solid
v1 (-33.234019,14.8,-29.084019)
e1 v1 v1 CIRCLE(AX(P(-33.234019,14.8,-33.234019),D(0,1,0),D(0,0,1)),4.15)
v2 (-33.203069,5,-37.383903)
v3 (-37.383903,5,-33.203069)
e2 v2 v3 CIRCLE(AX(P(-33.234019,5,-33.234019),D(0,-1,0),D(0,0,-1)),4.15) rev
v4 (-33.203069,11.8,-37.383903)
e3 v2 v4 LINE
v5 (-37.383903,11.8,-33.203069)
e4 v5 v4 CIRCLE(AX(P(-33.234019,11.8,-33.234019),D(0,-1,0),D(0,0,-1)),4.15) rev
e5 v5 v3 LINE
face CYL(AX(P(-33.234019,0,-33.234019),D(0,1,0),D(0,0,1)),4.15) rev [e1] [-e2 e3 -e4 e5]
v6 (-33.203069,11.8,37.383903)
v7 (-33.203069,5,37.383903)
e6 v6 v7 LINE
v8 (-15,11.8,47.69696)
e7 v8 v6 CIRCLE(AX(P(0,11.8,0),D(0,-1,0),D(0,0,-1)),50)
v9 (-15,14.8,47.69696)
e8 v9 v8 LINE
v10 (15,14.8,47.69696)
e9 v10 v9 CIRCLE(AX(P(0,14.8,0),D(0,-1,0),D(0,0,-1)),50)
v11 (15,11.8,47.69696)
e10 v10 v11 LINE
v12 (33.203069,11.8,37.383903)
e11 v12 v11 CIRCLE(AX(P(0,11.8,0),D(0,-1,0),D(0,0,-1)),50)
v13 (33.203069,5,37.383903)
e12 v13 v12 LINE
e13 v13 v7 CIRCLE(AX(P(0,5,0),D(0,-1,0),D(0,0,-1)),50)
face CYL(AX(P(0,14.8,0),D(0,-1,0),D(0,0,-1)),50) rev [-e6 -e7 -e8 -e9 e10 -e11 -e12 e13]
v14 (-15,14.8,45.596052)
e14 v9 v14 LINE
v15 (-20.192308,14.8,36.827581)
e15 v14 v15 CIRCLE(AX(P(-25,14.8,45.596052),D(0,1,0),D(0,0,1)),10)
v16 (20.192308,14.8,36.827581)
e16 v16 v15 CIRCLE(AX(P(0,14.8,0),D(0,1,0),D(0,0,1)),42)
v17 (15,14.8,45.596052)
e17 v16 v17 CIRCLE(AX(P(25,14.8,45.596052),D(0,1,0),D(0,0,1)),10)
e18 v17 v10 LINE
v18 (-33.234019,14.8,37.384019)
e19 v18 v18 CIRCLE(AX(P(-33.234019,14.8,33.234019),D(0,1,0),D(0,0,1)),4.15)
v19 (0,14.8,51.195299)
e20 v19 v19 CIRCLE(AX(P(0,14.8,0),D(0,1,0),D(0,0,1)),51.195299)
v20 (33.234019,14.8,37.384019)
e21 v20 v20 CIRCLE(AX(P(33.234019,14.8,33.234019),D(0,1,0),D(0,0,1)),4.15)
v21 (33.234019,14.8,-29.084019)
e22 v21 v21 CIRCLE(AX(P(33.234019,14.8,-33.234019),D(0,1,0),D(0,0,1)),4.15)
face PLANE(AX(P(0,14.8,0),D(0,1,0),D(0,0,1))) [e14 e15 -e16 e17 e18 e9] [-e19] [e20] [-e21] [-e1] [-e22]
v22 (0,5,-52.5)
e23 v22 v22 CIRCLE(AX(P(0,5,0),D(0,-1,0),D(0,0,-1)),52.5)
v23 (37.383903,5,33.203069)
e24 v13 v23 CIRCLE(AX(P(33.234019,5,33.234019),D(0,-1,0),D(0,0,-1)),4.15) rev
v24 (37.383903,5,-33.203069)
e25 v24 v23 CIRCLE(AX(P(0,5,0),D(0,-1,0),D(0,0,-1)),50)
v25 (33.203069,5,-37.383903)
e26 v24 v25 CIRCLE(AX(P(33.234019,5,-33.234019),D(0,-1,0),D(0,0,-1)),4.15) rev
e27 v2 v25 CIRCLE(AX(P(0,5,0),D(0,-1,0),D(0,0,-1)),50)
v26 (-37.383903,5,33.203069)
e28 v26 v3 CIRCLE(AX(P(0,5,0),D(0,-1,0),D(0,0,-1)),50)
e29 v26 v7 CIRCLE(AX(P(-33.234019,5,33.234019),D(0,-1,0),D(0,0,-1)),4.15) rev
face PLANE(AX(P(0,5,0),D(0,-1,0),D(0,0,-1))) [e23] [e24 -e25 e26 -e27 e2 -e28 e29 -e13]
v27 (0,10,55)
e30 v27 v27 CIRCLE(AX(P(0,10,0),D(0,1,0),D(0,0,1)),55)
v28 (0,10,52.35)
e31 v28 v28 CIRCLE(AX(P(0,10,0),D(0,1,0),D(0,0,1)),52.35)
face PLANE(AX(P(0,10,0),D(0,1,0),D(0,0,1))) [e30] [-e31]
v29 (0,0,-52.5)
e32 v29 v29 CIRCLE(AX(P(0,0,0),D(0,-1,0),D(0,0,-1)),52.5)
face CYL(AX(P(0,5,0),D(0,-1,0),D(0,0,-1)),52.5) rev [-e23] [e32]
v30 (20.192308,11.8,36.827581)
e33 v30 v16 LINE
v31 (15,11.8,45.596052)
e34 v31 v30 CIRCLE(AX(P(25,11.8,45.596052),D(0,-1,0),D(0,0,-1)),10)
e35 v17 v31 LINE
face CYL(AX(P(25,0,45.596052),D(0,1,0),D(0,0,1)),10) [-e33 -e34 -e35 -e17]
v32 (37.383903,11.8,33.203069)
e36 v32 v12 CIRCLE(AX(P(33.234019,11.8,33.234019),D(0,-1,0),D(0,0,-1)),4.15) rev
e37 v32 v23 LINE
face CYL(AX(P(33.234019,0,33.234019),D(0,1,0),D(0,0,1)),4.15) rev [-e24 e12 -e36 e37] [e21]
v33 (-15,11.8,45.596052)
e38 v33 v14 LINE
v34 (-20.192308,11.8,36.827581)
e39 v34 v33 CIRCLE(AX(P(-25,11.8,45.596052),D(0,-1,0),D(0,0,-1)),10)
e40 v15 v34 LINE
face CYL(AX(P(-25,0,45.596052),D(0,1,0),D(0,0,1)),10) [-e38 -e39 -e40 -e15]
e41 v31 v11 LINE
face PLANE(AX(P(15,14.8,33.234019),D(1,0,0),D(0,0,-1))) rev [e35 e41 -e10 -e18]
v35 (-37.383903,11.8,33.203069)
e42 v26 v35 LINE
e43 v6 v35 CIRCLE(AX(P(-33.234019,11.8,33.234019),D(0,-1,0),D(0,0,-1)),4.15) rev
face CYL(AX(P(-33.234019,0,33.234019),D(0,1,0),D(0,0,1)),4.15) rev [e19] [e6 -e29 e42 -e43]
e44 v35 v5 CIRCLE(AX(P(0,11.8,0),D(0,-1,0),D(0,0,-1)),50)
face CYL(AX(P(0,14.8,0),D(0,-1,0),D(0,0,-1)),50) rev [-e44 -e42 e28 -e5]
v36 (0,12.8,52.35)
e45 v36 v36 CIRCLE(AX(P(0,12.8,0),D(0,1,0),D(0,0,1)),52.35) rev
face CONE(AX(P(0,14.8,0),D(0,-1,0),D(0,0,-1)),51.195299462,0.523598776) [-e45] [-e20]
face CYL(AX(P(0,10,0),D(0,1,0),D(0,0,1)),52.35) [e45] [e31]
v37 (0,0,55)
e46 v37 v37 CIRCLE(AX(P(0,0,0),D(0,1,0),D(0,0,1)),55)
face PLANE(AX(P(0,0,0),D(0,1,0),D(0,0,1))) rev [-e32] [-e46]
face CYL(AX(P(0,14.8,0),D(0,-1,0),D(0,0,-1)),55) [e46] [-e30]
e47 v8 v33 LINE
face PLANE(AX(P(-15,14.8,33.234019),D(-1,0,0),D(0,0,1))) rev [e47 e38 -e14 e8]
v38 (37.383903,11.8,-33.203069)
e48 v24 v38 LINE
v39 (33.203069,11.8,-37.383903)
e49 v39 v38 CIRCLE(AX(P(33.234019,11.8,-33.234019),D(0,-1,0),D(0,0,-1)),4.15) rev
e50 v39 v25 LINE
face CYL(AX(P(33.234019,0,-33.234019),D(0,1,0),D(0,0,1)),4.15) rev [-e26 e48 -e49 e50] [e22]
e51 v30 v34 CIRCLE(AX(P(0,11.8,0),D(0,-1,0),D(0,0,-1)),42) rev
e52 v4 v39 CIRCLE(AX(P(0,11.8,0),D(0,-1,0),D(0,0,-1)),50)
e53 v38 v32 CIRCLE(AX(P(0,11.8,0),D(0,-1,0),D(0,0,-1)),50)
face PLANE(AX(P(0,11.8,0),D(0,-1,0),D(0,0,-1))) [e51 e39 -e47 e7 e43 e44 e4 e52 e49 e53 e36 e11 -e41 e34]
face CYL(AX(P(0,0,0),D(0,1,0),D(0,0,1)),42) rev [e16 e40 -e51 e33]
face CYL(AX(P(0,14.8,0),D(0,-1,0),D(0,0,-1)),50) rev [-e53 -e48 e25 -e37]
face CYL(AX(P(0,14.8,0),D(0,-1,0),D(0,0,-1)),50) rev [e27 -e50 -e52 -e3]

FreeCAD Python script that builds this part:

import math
import FreeCAD as App
import Part
import Sketcher
from FreeCAD import Vector
Q = App.Units.Quantity


def edges_at(feature, points):
    """Names of the edges that pass closest to the given points."""
    edges = feature.Shape.Edges
    near = lambda p: min(range(len(edges)), key=lambda i: edges[i].distToShape(Part.Vertex(*p))[0])
    return sorted({f"Edge{near(p) + 1}" for p in points})


def faces_at(feature, points):
    """Names of the faces that lie closest to the given points."""
    faces = feature.Shape.Faces
    near = lambda p: min(range(len(faces)), key=lambda i: faces[i].distToShape(Part.Vertex(*p))[0])
    return sorted({f"Face{near(p) + 1}" for p in points})

doc = App.newDocument("Part")
params = doc.addObject("Spreadsheet::Sheet", "Params")
for row, (alias, value) in enumerate([
    ("sketch1_diameter", "110 mm"),
    ("pad1_length", "14.8 mm"),
    ("thickness_wall", "5 mm"),
    ("sketch2_diameter", "70 mm"),
    ("sketch3_diameter", "84 mm"),
    ("sketch4_diameter", "8.3 mm"),
    ("sketch5_diameter", "100 mm"),
    ("pocket4_length", "2 mm"),
    ("sketch6_radius", "50 mm"),
    ("sketch6_width", "30 mm"),
    ("fillet_radius", "10 mm"),
    ("sketch7_diameter", "104.7 mm"),
    ("pocket6_length", "4.8 mm"),
    ("chamfer_size", "2 mm"),
    ("chamfer_size2", "1.154701 mm"),
    ("sketch8_diameter", "105 mm"),
    ("pocket7_length", "5 mm"),
], start=1):
    params.set(f"A{row}", alias)
    params.set(f"B{row}", "=" + value)
    params.setAlias(f"B{row}", alias)

body = doc.addObject("PartDesign::Body", "Body")

sketch1 = body.newObject("Sketcher::SketchObject", "Sketch")
sketch1.AttachmentSupport = (doc.getObject("XZ_Plane"), [""])
sketch1.MapMode = "FlatFace"
sketch1.addGeometry(Part.Circle(Vector(0, 0, 0), Vector(0, 0, 1), 55), False)
sketch1.addConstraint([
    Sketcher.Constraint("Coincident", 0, 3, -1, 1),
    Sketcher.Constraint("Diameter", 0, Q("110 mm")),
])
sketch1.setExpression("Constraints[1]", "Params.sketch1_diameter")
pad1 = body.newObject("PartDesign::Pad", "Pad")
pad1.Profile = sketch1
pad1.setExpression("Length", "Params.pad1_length")
pad1.Reversed = True
doc.recompute()

thickness = body.newObject("PartDesign::Thickness", "Thickness")
thickness.Base = (pad1, faces_at(pad1, [(0, 0, 0)]))
thickness.setExpression("Value", "Params.thickness_wall")
thickness.Reversed = True
thickness.Join = "Intersection"

sketch2 = body.newObject("Sketcher::SketchObject", "Sketch001")
sketch2.AttachmentSupport = (doc.getObject("XZ_Plane"), [""])
sketch2.MapMode = "FlatFace"
sketch2.AttachmentOffset = App.Placement(Vector(0, 0, -9.8), App.Rotation())
sketch2.addGeometry(Part.Circle(Vector(0, 0, 0), Vector(0, 0, 1), 35), False)
sketch2.addConstraint([
    Sketcher.Constraint("Coincident", 0, 3, -1, 1),
    Sketcher.Constraint("Diameter", 0, Q("70 mm")),
])
sketch2.setExpression("Constraints[1]", "Params.sketch2_diameter")
pocket1 = body.newObject("PartDesign::Pocket", "Pocket")
pocket1.Profile = sketch2
pocket1.Type = "ThroughAll"

sketch3 = body.newObject("Sketcher::SketchObject", "Sketch002")
sketch3.AttachmentSupport = (doc.getObject("XZ_Plane"), [""])
sketch3.MapMode = "FlatFace"
sketch3.AttachmentOffset = App.Placement(Vector(0, 0, -14.8), App.Rotation())
sketch3.addGeometry(Part.Circle(Vector(0, 0, 0), Vector(0, 0, 1), 42), False)
sketch3.addConstraint([
    Sketcher.Constraint("Coincident", 0, 3, -1, 1),
    Sketcher.Constraint("Diameter", 0, Q("84 mm")),
])
sketch3.setExpression("Constraints[1]", "Params.sketch3_diameter")
pocket2 = body.newObject("PartDesign::Pocket", "Pocket001")
pocket2.Profile = sketch3
pocket2.Type = "ThroughAll"
pocket2.Reversed = True

sketch4 = body.newObject("Sketcher::SketchObject", "Sketch003")
sketch4.AttachmentSupport = (doc.getObject("XZ_Plane"), [""])
sketch4.MapMode = "FlatFace"
sketch4.AttachmentOffset = App.Placement(Vector(0, 0, -14.8), App.Rotation())
sketch4.addGeometry([
    Part.Circle(Vector(-33.2, 33.2, 0), Vector(0, 0, 1), 4.2),
    Part.Circle(Vector(-33.2, -33.2, 0), Vector(0, 0, 1), 4.2),
    Part.Circle(Vector(33.2, -33.2, 0), Vector(0, 0, 1), 4.2),
    Part.Circle(Vector(33.2, 33.2, 0), Vector(0, 0, 1), 4.2),
], False)
sketch4.addConstraint([
    Sketcher.Constraint("Equal", 0, 1),
    Sketcher.Constraint("Equal", 1, 2),
    Sketcher.Constraint("Equal", 2, 3),
    Sketcher.Constraint("Symmetric", 0, 3, 2, 3, -1, 1),
    Sketcher.Constraint("Symmetric", 1, 3, 3, 3, -1, 1),
    Sketcher.Constraint("Symmetric", 1, 3, 2, 3, -2),
    Sketcher.Constraint("Diameter", 0, Q("8.3 mm")),
    Sketcher.Constraint("DistanceX", 0, 3, -1, 1, Q("33.234019 mm")),
    Sketcher.Constraint("DistanceY", -1, 1, 0, 3, Q("33.234019 mm")),
])
sketch4.setExpression("Constraints[6]", "Params.sketch4_diameter")
pocket3 = body.newObject("PartDesign::Pocket", "Pocket002")
pocket3.Profile = sketch4
pocket3.Type = "ThroughAll"
pocket3.Reversed = True

sketch5 = body.newObject("Sketcher::SketchObject", "Sketch004")
sketch5.AttachmentSupport = (doc.getObject("XZ_Plane"), [""])
sketch5.MapMode = "FlatFace"
sketch5.AttachmentOffset = App.Placement(Vector(0, 0, -9.8), App.Rotation())
sketch5.addGeometry(Part.Circle(Vector(0, 0, 0), Vector(0, 0, 1), 50), False)
sketch5.addConstraint([
    Sketcher.Constraint("Coincident", 0, 3, -1, 1),
    Sketcher.Constraint("Diameter", 0, Q("100 mm")),
])
sketch5.setExpression("Constraints[1]", "Params.sketch5_diameter")
pocket4 = body.newObject("PartDesign::Pocket", "Pocket003")
pocket4.Profile = sketch5
pocket4.setExpression("Length", "Params.pocket4_length")

sketch6 = body.newObject("Sketcher::SketchObject", "Sketch005")
sketch6.AttachmentSupport = (doc.getObject("XZ_Plane"), [""])
sketch6.MapMode = "FlatFace"
sketch6.AttachmentOffset = App.Placement(Vector(0, 0, -11.8), App.Rotation())
sketch6.addGeometry([
    Part.LineSegment(Vector(15, 33, 0), Vector(15, 48, 0)),
    Part.ArcOfCircle(Part.Circle(Vector(0, 0, 0), Vector(0, 0, 1), 50), math.radians(73), math.radians(107)),
    Part.LineSegment(Vector(-15, 48, 0), Vector(-15, 33, 0)),
    Part.LineSegment(Vector(-15, 33, 0), Vector(15, 33, 0)),
], False)
sketch6.addConstraint([
    Sketcher.Constraint("Coincident", 0, 2, 1, 1),
    Sketcher.Constraint("Coincident", 1, 2, 2, 1),
    Sketcher.Constraint("Coincident", 2, 2, 3, 1),
    Sketcher.Constraint("Coincident", 3, 2, 0, 1),
    Sketcher.Constraint("Vertical", 0),
    Sketcher.Constraint("Vertical", 2),
    Sketcher.Constraint("Horizontal", 3),
    Sketcher.Constraint("Coincident", 1, 3, -1, 1),
    Sketcher.Constraint("Horizontal", 0, 2, 1, 2),
    Sketcher.Constraint("Radius", 1, Q("50 mm")),
    Sketcher.Constraint("DistanceX", 3, 1, 3, 2, Q("30 mm")),
    Sketcher.Constraint("DistanceY", 0, 1, 0, 2, Q("14.462941 mm")),
])
sketch6.setExpression("Constraints[9]", "Params.sketch6_radius")
sketch6.setExpression("Constraints[10]", "Params.sketch6_width")
pocket5 = body.newObject("PartDesign::Pocket", "Pocket004")
pocket5.Profile = sketch6
pocket5.Type = "ThroughAll"
doc.recompute()

fillet = body.newObject("PartDesign::Fillet", "Fillet")
fillet.Base = (pocket5, edges_at(pocket5, [(-15, 13.3, 39.23), (15, 13.3, 39.23)]))
fillet.setExpression("Radius", "Params.fillet_radius")

sketch7 = body.newObject("Sketcher::SketchObject", "Sketch006")
sketch7.AttachmentSupport = (doc.getObject("XZ_Plane"), [""])
sketch7.MapMode = "FlatFace"
sketch7.AttachmentOffset = App.Placement(Vector(0, 0, -14.8), App.Rotation())
sketch7.addGeometry([
    Part.LineSegment(Vector(-72, -72, 0), Vector(-72, 72, 0)),
    Part.LineSegment(Vector(-72, 72, 0), Vector(72, 72, 0)),
    Part.LineSegment(Vector(72, 72, 0), Vector(72, -72, 0)),
    Part.LineSegment(Vector(72, -72, 0), Vector(-72, -72, 0)),
    Part.Circle(Vector(0, 0, 0), Vector(0, 0, 1), 52),
], False)
sketch7.addConstraint([
    Sketcher.Constraint("Coincident", 0, 2, 1, 1),
    Sketcher.Constraint("Coincident", 1, 2, 2, 1),
    Sketcher.Constraint("Coincident", 2, 2, 3, 1),
    Sketcher.Constraint("Coincident", 3, 2, 0, 1),
    Sketcher.Constraint("Vertical", 0),
    Sketcher.Constraint("Horizontal", 1),
    Sketcher.Constraint("Vertical", 2),
    Sketcher.Constraint("Horizontal", 3),
    Sketcher.Constraint("Coincident", 4, 3, -1, 1),
    Sketcher.Constraint("Symmetric", 0, 2, 2, 2, -1, 1),
    Sketcher.Constraint("Equal", 3, 0),
    Sketcher.Constraint("Diameter", 4, Q("104.7 mm")),
    Sketcher.Constraint("DistanceX", 1, 1, 1, 2, Q("143.254 mm")),
])
sketch7.setExpression("Constraints[11]", "Params.sketch7_diameter")
pocket6 = body.newObject("PartDesign::Pocket", "Pocket005")
pocket6.Profile = sketch7
pocket6.setExpression("Length", "Params.pocket6_length")
pocket6.Reversed = True
doc.recompute()

chamfer = body.newObject("PartDesign::Chamfer", "Chamfer")
chamfer.Base = (pocket6, edges_at(pocket6, [(0, 14.8, -52.35)]))
chamfer.ChamferType = "Two distances"
chamfer.setExpression("Size", "Params.chamfer_size")
chamfer.setExpression("Size2", "Params.chamfer_size2")
chamfer.FlipDirection = True

sketch8 = body.newObject("Sketcher::SketchObject", "Sketch007")
sketch8.AttachmentSupport = (doc.getObject("XZ_Plane"), [""])
sketch8.MapMode = "FlatFace"
sketch8.addGeometry(Part.Circle(Vector(0, 0, 0), Vector(0, 0, 1), 52), False)
sketch8.addConstraint([
    Sketcher.Constraint("Coincident", 0, 3, -1, 1),
    Sketcher.Constraint("Diameter", 0, Q("105 mm")),
])
sketch8.setExpression("Constraints[1]", "Params.sketch8_diameter")
pocket7 = body.newObject("PartDesign::Pocket", "Pocket006")
pocket7.Profile = sketch8
pocket7.setExpression("Length", "Params.pocket7_length")

doc.recompute()
